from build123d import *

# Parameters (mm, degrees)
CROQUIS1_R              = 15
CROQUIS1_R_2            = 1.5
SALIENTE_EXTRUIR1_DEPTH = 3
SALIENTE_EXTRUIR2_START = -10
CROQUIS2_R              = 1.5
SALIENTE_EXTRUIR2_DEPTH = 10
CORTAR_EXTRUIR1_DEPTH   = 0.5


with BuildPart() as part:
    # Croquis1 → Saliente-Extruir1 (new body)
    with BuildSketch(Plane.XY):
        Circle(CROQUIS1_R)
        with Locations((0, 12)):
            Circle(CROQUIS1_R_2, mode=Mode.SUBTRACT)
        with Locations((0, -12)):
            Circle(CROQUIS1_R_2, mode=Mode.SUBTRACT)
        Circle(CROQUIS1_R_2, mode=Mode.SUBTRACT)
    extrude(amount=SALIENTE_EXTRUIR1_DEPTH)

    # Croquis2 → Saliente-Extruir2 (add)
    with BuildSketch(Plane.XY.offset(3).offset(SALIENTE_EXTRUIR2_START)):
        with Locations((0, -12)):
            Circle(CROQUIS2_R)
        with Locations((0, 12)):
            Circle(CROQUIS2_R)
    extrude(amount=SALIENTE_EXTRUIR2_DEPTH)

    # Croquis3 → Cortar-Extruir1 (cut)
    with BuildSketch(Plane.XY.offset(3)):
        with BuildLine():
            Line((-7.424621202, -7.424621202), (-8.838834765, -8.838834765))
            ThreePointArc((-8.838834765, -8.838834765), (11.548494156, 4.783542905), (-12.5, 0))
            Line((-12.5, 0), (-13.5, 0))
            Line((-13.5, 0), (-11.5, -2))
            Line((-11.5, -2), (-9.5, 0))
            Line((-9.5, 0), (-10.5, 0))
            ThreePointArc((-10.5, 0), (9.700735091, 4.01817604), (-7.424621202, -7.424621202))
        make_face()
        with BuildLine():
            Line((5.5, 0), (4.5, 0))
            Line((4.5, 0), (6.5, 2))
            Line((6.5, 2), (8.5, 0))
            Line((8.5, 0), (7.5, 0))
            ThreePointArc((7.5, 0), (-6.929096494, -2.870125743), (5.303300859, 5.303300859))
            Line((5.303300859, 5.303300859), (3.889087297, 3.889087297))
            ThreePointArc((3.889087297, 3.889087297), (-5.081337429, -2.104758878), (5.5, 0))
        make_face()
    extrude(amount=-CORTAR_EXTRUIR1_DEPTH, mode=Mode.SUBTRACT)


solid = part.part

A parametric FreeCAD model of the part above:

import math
import FreeCAD as App
import Part
import Sketcher
from FreeCAD import Vector

doc = App.newDocument("Part")
params = doc.addObject("Spreadsheet::Sheet", "Params")
for row, (alias, value) in enumerate([
    ("sketch1_diameter", "30 mm"),
    ("sketch1_diameter2", "3 mm"),
    ("pad1_length", "3 mm"),
    ("sketch2_diameter", "3 mm"),
    ("pad2_length", "10 mm"),
    ("sketch3_radius", "12.5 mm"),
    ("sketch3_radius2", "10.5 mm"),
    ("sketch3_radius3", "5.5 mm"),
    ("sketch3_width", "1 mm"),
    ("pocket1_length", "0.5 mm"),
], start=1):
    params.set(f"A{row}", alias)
    params.set(f"B{row}", "=" + value)
    params.setAlias(f"B{row}", alias)

body = doc.addObject("PartDesign::Body", "Body")

sketch1 = body.newObject("Sketcher::SketchObject", "Sketch")
sketch1.AttachmentSupport = (doc.getObject("XY_Plane"), [""])
sketch1.MapMode = "FlatFace"
sketch1.addGeometry([
    Part.Circle(Vector(0, 0, 0), Vector(0, 0, 1), 15),
    Part.Circle(Vector(0, -12, 0), Vector(0, 0, 1), 1.5),
    Part.Circle(Vector(0, 0, 0), Vector(0, 0, 1), 1.5),
    Part.Circle(Vector(0, 12, 0), Vector(0, 0, 1), 1.5),
], False)
sketch1.addConstraint([
    Sketcher.Constraint("Coincident", 0, 3, -1, 1),
    Sketcher.Constraint("Coincident", 2, 3, -1, 1),
    Sketcher.Constraint("Equal", 1, 2),
    Sketcher.Constraint("Equal", 2, 3),
    Sketcher.Constraint("Symmetric", 1, 3, 3, 3, -1, 1),
    Sketcher.Constraint("PointOnObject", 1, 3, -2),
    Sketcher.Constraint("Diameter", 0, 30.0),
    Sketcher.Constraint("Diameter", 1, 3.0),
    Sketcher.Constraint("DistanceY", 1, 3, -1, 1, 12.0),
])
sketch1.setExpression("Constraints[6]", "Params.sketch1_diameter")
sketch1.setExpression("Constraints[7]", "Params.sketch1_diameter2")
pad1 = body.newObject("PartDesign::Pad", "Pad")
pad1.Profile = sketch1
pad1.setExpression("Length", "Params.pad1_length")

sketch2 = body.newObject("Sketcher::SketchObject", "Sketch001")
sketch2.AttachmentSupport = (doc.getObject("XY_Plane"), [""])
sketch2.MapMode = "FlatFace"
sketch2.AttachmentOffset = App.Placement(Vector(0, 0, -7), App.Rotation())
sketch2.addGeometry([
    Part.Circle(Vector(0, -12, 0), Vector(0, 0, 1), 1.5),
    Part.Circle(Vector(0, 12, 0), Vector(0, 0, 1), 1.5),
], False)
sketch2.addConstraint([
    Sketcher.Constraint("Equal", 0, 1),
    Sketcher.Constraint("Symmetric", 0, 3, 1, 3, -1, 1),
    Sketcher.Constraint("PointOnObject", 0, 3, -2),
    Sketcher.Constraint("Diameter", 0, 3.0),
    Sketcher.Constraint("DistanceY", 0, 3, -1, 1, 12.0),
])
sketch2.setExpression("Constraints[3]", "Params.sketch2_diameter")
pad2 = body.newObject("PartDesign::Pad", "Pad001")
pad2.Profile = sketch2
pad2.setExpression("Length", "Params.pad2_length")

sketch3 = body.newObject("Sketcher::SketchObject", "Sketch002")
sketch3.AttachmentSupport = (doc.getObject("XY_Plane"), [""])
sketch3.MapMode = "FlatFace"
sketch3.AttachmentOffset = App.Placement(Vector(0, 0, 3), App.Rotation())
sketch3.addGeometry([
    Part.LineSegment(Vector(-7.424621, -7.424621, 0), Vector(-8.838835, -8.838835, 0)),
    Part.ArcOfCircle(Part.Circle(Vector(0, 0, 0), Vector(0, 0, 1), 12.5), math.radians(-135), math.radians(180)),
    Part.LineSegment(Vector(-12.5, 0, 0), Vector(-13.5, 0, 0)),
    Part.LineSegment(Vector(-13.5, 0, 0), Vector(-11.5, -2, 0)),
    Part.LineSegment(Vector(-11.5, -2, 0), Vector(-9.5, 0, 0)),
    Part.LineSegment(Vector(-9.5, 0, 0), Vector(-10.5, 0, 0)),
    Part.ArcOfCircle(Part.Circle(Vector(0, 0, 0), Vector(0, 0, 1), 10.5), math.radians(-135), math.radians(180)),
    Part.LineSegment(Vector(4.5, 0, 0), Vector(5.5, 0, 0)),
    Part.ArcOfCircle(Part.Circle(Vector(0, 0, 0), Vector(0, 0, 1), 5.5), math.radians(45), math.radians(360)),
    Part.LineSegment(Vector(3.889087, 3.889087, 0), Vector(5.303301, 5.303301, 0)),
    Part.ArcOfCircle(Part.Circle(Vector(0, 0, 0), Vector(0, 0, 1), 7.5), math.radians(45), math.radians(360)),
    Part.LineSegment(Vector(7.5, 0, 0), Vector(8.5, 0, 0)),
    Part.LineSegment(Vector(8.5, 0, 0), Vector(6.5, 2, 0)),
    Part.LineSegment(Vector(6.5, 2, 0), Vector(4.5, 0, 0)),
], False)
sketch3.addConstraint([
    Sketcher.Constraint("Coincident", 0, 2, 1, 1),
    Sketcher.Constraint("Coincident", 1, 2, 2, 1),
    Sketcher.Constraint("Coincident", 2, 2, 3, 1),
    Sketcher.Constraint("Coincident", 3, 2, 4, 1),
    Sketcher.Constraint("Coincident", 4, 2, 5, 1),
    Sketcher.Constraint("Coincident", 5, 2, 6, 2),
    Sketcher.Constraint("Coincident", 6, 1, 0, 1),
    Sketcher.Constraint("Coincident", 7, 2, 8, 2),
    Sketcher.Constraint("Coincident", 8, 1, 9, 1),
    Sketcher.Constraint("Coincident", 9, 2, 10, 1),
    Sketcher.Constraint("Coincident", 10, 2, 11, 1),
    Sketcher.Constraint("Coincident", 11, 2, 12, 1),
    Sketcher.Constraint("Coincident", 12, 2, 13, 1),
    Sketcher.Constraint("Coincident", 13, 2, 7, 1),
    Sketcher.Constraint("Horizontal", 2),
    Sketcher.Constraint("Horizontal", 5),
    Sketcher.Constraint("Horizontal", 7),
    Sketcher.Constraint("Horizontal", 11),
    Sketcher.Constraint("Coincident", 1, 3, -1, 1),
    Sketcher.Constraint("Coincident", 6, 3, -1, 1),
    Sketcher.Constraint("Coincident", 8, 3, -1, 1),
    Sketcher.Constraint("Coincident", 10, 3, -1, 1),
    Sketcher.Constraint("PointOnObject", 1, 2, -1),
    Sketcher.Constraint("PointOnObject", 4, 2, -1),
    Sketcher.Constraint("PointOnObject", 7, 2, -1),
    Sketcher.Constraint("PointOnObject", 10, 2, -1),
    Sketcher.Constraint("Perpendicular", 0, 3),
    Sketcher.Constraint("Perpendicular", 3, 4),
    Sketcher.Constraint("Parallel", 4, 9),
    Sketcher.Constraint("Perpendicular", 9, 12),
    Sketcher.Constraint("Perpendicular", 12, 13),
    Sketcher.Constraint("Equal", 2, 5),
    Sketcher.Constraint("Equal", 5, 7),
    Sketcher.Constraint("Equal", 7, 11),
    Sketcher.Constraint("Equal", 3, 4),
    Sketcher.Constraint("Equal", 0, 9),
    Sketcher.Constraint("Radius", 1, 12.5),
    Sketcher.Constraint("Radius", 6, 10.5),
    Sketcher.Constraint("Radius", 8, 5.5),
    Sketcher.Constraint("DistanceX", 2, 2, 2, 1, 1.0),
    Sketcher.Constraint("DistanceX", -1, 1, 9, 2, 5.303301),
    Sketcher.Constraint("DistanceX", 6, 1, -1, 1, 7.424621),
])
sketch3.setExpression("Constraints[36]", "Params.sketch3_radius")
sketch3.setExpression("Constraints[37]", "Params.sketch3_radius2")
sketch3.setExpression("Constraints[38]", "Params.sketch3_radius3")
sketch3.setExpression("Constraints[39]", "Params.sketch3_width")
pocket1 = body.newObject("PartDesign::Pocket", "Pocket")
pocket1.Profile = sketch3
pocket1.setExpression("Length", "Params.pocket1_length")

doc.recompute()
